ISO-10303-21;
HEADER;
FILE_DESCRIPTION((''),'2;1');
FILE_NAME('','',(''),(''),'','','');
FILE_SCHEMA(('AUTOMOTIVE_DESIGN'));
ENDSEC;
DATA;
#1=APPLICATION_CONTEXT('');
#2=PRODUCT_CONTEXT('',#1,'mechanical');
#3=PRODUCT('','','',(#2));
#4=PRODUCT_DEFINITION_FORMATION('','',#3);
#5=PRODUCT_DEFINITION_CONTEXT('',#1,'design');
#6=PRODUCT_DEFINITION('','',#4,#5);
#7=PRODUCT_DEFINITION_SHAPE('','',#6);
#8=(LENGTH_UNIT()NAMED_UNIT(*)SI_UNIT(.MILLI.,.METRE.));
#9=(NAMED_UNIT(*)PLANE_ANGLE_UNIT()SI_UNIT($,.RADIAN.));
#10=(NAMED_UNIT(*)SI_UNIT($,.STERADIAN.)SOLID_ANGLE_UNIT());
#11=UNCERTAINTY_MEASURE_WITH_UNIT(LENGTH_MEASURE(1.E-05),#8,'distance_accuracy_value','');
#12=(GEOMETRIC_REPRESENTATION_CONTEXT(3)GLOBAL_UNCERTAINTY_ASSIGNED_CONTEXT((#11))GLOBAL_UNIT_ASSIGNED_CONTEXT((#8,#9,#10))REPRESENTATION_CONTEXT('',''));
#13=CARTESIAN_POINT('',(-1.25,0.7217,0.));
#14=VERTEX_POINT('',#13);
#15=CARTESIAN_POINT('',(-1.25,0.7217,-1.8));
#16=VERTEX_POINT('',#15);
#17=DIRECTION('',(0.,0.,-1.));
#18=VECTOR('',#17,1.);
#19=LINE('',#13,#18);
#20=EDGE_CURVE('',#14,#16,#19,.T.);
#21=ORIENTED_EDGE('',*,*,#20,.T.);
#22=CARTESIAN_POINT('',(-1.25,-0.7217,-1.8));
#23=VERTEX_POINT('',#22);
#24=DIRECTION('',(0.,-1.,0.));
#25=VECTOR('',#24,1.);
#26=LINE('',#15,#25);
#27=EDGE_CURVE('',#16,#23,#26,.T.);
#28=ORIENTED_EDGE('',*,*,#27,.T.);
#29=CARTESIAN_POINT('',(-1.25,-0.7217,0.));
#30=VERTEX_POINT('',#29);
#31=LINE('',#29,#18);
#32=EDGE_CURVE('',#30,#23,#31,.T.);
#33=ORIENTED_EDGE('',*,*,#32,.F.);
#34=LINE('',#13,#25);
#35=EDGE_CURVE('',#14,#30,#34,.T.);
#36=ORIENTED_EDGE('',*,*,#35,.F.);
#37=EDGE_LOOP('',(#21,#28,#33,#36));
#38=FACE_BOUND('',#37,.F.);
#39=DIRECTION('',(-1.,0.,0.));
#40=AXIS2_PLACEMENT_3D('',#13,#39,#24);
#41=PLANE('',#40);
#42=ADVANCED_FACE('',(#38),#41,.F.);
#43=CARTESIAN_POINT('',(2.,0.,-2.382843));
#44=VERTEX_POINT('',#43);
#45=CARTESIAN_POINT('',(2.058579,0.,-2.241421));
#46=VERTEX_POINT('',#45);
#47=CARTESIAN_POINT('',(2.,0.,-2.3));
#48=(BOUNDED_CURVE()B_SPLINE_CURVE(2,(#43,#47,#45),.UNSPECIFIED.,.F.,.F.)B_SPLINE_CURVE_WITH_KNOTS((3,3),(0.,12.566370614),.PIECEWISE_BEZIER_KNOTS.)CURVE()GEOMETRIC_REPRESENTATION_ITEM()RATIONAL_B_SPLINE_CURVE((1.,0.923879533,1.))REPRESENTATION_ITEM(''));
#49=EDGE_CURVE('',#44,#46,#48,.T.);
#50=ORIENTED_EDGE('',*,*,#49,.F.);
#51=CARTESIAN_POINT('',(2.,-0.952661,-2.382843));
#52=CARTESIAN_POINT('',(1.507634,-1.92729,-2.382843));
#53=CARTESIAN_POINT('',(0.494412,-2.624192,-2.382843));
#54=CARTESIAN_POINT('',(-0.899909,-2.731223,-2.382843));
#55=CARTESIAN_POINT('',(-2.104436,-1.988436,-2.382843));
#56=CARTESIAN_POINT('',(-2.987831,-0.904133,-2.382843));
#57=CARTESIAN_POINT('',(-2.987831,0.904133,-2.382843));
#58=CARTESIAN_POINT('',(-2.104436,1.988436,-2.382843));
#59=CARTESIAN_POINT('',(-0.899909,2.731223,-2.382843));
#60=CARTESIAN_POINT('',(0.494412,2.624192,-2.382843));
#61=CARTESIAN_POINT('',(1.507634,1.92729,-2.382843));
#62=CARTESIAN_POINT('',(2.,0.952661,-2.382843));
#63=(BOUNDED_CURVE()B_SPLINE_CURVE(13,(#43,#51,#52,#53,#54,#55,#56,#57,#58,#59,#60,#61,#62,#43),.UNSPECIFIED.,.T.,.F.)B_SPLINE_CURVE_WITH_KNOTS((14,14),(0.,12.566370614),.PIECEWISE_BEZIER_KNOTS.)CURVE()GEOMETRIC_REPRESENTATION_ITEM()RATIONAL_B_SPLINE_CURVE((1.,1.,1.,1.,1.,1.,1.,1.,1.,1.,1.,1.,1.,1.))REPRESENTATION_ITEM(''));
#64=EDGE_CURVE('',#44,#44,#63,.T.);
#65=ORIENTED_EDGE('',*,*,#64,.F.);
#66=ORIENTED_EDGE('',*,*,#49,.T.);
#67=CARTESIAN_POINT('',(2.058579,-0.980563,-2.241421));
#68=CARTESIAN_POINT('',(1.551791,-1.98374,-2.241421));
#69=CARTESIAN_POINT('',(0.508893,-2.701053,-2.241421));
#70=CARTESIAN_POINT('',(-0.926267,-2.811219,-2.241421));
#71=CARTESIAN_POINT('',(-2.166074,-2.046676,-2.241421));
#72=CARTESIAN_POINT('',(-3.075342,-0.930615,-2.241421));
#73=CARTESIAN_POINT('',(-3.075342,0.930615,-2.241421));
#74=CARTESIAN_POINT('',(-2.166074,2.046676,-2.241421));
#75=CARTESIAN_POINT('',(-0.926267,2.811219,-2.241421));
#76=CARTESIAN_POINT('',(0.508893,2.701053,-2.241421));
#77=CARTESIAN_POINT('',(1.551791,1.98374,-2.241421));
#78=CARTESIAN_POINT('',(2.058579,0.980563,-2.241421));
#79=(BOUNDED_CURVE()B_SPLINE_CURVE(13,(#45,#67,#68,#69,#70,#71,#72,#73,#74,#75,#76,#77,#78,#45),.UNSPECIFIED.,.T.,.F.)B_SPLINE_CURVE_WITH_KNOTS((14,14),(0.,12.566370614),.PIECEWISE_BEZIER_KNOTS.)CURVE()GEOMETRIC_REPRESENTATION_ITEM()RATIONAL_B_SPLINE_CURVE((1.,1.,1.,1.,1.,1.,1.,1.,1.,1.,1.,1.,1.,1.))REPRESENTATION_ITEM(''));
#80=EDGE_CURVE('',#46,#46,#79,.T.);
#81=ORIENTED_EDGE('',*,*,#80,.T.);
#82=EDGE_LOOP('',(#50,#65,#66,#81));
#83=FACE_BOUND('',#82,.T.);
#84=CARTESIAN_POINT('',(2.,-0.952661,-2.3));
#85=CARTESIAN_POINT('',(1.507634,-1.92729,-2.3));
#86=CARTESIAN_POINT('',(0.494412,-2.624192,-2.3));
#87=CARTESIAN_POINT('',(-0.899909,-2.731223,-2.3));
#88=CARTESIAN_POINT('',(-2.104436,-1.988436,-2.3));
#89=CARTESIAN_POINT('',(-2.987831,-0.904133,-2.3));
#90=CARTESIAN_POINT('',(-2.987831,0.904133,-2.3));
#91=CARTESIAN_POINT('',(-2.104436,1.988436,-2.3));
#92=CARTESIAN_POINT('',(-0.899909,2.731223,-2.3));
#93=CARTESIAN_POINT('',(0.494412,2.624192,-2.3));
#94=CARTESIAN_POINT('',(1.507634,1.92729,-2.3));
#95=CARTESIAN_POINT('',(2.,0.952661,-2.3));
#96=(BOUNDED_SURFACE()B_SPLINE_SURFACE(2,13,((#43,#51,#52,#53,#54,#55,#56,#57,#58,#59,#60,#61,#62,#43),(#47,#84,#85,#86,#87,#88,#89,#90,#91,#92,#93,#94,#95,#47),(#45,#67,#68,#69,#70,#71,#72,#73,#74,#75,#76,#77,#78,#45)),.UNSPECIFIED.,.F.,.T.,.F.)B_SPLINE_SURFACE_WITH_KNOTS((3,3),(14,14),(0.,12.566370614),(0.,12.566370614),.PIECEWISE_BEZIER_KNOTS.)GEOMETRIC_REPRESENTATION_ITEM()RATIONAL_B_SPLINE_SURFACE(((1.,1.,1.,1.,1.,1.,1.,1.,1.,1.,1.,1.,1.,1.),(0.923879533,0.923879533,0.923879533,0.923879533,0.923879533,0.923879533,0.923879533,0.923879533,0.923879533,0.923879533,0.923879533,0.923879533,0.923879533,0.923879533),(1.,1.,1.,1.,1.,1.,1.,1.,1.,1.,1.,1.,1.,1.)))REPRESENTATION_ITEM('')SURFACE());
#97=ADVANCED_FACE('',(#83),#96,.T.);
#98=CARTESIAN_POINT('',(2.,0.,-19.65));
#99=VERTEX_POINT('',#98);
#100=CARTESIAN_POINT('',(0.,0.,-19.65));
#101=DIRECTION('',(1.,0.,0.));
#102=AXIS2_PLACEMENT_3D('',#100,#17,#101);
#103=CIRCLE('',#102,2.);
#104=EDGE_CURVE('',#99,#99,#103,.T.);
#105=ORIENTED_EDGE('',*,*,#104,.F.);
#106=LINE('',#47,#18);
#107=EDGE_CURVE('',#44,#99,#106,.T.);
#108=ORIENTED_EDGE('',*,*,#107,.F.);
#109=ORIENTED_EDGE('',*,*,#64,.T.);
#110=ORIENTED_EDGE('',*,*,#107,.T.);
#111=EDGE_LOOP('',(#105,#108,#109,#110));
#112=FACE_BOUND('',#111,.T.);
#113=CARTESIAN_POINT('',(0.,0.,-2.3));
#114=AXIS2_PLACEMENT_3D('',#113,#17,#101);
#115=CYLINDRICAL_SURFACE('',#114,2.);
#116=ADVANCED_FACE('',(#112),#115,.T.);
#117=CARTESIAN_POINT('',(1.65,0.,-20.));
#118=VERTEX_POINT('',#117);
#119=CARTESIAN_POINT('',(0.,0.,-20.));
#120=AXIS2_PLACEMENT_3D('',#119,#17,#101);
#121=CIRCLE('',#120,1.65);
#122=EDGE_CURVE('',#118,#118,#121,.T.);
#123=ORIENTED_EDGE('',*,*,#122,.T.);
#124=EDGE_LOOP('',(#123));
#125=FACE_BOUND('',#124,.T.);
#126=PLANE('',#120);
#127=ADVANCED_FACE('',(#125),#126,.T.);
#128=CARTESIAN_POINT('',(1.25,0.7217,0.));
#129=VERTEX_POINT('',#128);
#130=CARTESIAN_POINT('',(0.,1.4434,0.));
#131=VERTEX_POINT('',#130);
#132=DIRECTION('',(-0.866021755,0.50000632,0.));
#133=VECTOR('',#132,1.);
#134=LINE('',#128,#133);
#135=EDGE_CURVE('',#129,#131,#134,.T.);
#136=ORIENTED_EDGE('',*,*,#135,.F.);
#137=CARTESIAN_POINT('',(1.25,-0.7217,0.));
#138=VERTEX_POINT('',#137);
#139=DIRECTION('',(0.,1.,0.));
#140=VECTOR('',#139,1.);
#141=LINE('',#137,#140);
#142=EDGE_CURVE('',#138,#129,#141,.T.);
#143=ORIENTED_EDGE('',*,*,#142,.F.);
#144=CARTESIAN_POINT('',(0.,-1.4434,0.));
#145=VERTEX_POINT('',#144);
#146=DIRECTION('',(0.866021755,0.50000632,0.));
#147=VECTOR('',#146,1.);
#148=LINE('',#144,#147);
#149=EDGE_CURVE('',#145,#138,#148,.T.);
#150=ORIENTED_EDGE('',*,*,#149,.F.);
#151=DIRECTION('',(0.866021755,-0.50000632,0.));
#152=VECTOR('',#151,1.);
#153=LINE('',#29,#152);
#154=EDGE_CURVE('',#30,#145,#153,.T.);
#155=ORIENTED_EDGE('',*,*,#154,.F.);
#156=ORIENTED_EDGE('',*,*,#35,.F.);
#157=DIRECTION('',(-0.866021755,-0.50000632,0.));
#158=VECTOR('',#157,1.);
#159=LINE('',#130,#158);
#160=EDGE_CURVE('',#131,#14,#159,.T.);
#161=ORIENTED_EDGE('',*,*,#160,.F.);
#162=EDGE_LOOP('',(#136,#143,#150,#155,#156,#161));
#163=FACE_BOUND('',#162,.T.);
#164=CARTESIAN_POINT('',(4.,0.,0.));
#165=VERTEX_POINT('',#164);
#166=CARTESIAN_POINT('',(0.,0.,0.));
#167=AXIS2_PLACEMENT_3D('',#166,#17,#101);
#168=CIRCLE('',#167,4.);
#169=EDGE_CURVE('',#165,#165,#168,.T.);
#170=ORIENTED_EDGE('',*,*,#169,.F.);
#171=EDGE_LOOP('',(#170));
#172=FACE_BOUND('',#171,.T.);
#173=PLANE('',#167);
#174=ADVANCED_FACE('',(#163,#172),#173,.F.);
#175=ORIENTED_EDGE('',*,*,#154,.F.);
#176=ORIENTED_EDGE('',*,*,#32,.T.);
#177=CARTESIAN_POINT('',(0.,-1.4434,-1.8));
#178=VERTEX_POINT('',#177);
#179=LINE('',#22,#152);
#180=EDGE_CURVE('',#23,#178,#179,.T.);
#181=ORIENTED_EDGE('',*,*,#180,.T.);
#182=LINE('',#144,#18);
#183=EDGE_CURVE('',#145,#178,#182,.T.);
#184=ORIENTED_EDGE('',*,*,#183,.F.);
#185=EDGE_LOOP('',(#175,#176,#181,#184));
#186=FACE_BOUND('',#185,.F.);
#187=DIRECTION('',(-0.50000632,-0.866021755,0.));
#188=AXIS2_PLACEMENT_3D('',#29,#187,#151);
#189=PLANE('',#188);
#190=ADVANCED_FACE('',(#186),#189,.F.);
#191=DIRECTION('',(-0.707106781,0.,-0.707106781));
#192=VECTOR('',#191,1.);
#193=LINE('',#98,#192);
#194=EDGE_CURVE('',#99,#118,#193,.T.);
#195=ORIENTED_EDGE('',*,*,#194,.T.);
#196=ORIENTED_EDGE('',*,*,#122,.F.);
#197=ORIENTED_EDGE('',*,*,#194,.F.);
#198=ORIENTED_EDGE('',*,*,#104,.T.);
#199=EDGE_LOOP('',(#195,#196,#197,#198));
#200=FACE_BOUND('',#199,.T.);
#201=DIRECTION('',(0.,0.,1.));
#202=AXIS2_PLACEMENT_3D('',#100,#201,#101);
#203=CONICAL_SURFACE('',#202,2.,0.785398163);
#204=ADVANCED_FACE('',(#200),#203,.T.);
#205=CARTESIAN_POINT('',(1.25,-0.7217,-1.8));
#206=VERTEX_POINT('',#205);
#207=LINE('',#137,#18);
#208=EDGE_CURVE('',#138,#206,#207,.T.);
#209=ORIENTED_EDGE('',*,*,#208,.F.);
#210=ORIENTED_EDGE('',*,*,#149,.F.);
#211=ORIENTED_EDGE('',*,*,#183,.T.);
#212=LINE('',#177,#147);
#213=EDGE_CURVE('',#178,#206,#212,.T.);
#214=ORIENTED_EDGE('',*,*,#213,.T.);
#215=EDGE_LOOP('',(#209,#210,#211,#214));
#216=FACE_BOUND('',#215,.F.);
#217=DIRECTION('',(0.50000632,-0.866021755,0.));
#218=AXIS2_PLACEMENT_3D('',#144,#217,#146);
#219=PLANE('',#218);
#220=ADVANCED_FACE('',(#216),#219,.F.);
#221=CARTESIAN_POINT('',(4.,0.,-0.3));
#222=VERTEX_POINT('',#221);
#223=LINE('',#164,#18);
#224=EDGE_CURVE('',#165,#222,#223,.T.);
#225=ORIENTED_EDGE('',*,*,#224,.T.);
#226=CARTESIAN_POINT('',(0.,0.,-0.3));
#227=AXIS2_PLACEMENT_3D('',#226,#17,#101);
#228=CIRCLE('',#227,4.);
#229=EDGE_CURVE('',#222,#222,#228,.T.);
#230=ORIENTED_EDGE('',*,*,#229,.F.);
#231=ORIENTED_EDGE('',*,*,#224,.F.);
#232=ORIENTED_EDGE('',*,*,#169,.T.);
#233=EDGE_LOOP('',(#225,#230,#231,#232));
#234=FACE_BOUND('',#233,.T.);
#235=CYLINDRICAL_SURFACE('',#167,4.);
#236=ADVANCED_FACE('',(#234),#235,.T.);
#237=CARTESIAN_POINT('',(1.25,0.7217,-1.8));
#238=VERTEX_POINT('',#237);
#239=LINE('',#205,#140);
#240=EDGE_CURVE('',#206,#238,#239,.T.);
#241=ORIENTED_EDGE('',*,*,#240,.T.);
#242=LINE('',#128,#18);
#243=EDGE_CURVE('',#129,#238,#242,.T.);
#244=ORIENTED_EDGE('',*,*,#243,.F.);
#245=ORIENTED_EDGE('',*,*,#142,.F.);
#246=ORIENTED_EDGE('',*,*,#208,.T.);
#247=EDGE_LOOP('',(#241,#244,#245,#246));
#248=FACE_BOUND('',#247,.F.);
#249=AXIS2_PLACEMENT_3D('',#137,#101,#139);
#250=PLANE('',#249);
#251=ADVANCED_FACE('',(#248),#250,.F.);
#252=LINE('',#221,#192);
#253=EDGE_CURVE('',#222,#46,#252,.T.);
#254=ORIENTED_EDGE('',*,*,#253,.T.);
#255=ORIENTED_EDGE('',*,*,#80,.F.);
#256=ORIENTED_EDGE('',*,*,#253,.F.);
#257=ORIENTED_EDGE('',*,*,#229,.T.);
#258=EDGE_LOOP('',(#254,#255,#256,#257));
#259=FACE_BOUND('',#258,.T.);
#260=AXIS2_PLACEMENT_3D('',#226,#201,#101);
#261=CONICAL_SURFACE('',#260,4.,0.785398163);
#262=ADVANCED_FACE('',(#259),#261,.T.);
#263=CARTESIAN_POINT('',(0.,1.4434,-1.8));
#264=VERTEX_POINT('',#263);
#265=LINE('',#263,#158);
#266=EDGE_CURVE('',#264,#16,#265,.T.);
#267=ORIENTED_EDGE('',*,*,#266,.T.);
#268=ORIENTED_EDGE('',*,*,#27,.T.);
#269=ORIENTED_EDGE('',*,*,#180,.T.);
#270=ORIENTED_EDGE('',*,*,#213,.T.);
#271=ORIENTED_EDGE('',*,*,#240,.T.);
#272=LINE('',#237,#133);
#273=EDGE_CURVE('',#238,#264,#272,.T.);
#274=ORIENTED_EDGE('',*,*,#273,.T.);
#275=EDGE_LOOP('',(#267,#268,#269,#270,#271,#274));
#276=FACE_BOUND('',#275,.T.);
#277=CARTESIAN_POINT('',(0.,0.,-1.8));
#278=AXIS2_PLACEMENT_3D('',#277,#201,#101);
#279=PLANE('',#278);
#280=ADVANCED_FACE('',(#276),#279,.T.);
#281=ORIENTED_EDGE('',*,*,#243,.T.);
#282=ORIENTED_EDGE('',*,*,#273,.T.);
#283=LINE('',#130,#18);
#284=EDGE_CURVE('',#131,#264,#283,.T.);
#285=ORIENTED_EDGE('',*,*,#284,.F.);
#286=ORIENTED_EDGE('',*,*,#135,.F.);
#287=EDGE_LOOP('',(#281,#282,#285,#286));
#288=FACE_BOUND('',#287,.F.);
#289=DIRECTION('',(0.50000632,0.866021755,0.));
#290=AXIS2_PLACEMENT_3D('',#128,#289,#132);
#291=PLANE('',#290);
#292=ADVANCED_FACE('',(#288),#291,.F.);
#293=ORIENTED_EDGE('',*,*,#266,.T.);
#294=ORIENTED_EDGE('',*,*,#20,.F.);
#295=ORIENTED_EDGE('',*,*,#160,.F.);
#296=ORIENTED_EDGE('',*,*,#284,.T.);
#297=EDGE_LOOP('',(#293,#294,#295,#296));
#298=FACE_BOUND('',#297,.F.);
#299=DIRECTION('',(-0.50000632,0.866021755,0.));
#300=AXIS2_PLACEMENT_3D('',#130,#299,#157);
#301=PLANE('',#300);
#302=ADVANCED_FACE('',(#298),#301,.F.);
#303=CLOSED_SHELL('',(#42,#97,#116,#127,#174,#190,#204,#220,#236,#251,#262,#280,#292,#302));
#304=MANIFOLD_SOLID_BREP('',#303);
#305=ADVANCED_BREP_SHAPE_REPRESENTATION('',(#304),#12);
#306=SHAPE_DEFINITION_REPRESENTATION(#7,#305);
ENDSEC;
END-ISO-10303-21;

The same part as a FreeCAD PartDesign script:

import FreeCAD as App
import Part
import Sketcher

V = App.Vector
Q = App.Units.Quantity


def edges_at(feature, points):
    """Names of the edges that pass closest to the given points."""
    edges = feature.Shape.Edges
    near = lambda p: min(range(len(edges)), key=lambda i: edges[i].distToShape(Part.Vertex(*p))[0])
    return sorted({f"Edge{near(p) + 1}" for p in points})

doc = App.newDocument("Part")
body = doc.addObject("PartDesign::Body", "Body")

sketch1 = doc.addObject("Sketcher::SketchObject", "Sketch")
body.addObject(sketch1)
sketch1.AttachmentSupport = (doc.XZ_Plane, [""])
sketch1.MapMode = "FlatFace"
sketch1.addGeometry([
    Part.LineSegment(V(2, -2.3, 0), V(2, -20, 0)),
    Part.LineSegment(V(2, -20, 0), V(0, -20, 0)),
    Part.LineSegment(V(0, -20, 0), V(0, 0, 0)),
    Part.LineSegment(V(0, 0, 0), V(4, 0, 0)),
    Part.LineSegment(V(4, 0, 0), V(4, -0.3, 0)),
    Part.LineSegment(V(4, -0.3, 0), V(2, -2.3, 0)),
], False)
sketch1.addConstraint([
    Sketcher.Constraint("Coincident", 0, 2, 1, 1),
    Sketcher.Constraint("Coincident", 1, 2, 2, 1),
    Sketcher.Constraint("Coincident", 2, 2, 3, 1),
    Sketcher.Constraint("Coincident", 3, 2, 4, 1),
    Sketcher.Constraint("Coincident", 4, 2, 5, 1),
    Sketcher.Constraint("Coincident", 5, 2, 0, 1),
    Sketcher.Constraint("Vertical", 0),
    Sketcher.Constraint("Horizontal", 1),
    Sketcher.Constraint("Vertical", 2),
    Sketcher.Constraint("Horizontal", 3),
    Sketcher.Constraint("Vertical", 4),
    Sketcher.Constraint("Coincident", 2, 2, -1, 1),
    Sketcher.Constraint("DistanceX", 1, 2, 1, 1, Q("2 mm")),
    Sketcher.Constraint("DistanceX", 3, 1, 3, 2, Q("4 mm")),
    Sketcher.Constraint("DistanceY", 2, 1, 2, 2, Q("20 mm")),
    Sketcher.Constraint("DistanceY", 4, 2, 4, 1, Q("0.3 mm")),
    Sketcher.Constraint("DistanceY", 5, 2, 4, 2, Q("2 mm")),
])
revolution = doc.addObject("PartDesign::Revolution", "Revolution")
body.addObject(revolution)
revolution.Profile = sketch1
revolution.ReferenceAxis = (sketch1, ["V_Axis"])
revolution.Angle = 360

sketch2 = doc.addObject("Sketcher::SketchObject", "Sketch001")
body.addObject(sketch2)
sketch2.AttachmentSupport = (doc.XY_Plane, [""])
sketch2.MapMode = "FlatFace"
sketch2.addGeometry([
    Part.LineSegment(V(0, 1.4434, 0), V(-1.25, 0.7217, 0)),
    Part.LineSegment(V(-1.25, 0.7217, 0), V(-1.25, -0.7217, 0)),
    Part.LineSegment(V(-1.25, -0.7217, 0), V(0, -1.4434, 0)),
    Part.LineSegment(V(0, -1.4434, 0), V(1.25, -0.7217, 0)),
    Part.LineSegment(V(1.25, -0.7217, 0), V(1.25, 0.7217, 0)),
    Part.LineSegment(V(1.25, 0.7217, 0), V(0, 1.4434, 0)),
], False)
sketch2.addConstraint([
    Sketcher.Constraint("Coincident", 0, 2, 1, 1),
    Sketcher.Constraint("Coincident", 1, 2, 2, 1),
    Sketcher.Constraint("Coincident", 2, 2, 3, 1),
    Sketcher.Constraint("Coincident", 3, 2, 4, 1),
    Sketcher.Constraint("Coincident", 4, 2, 5, 1),
    Sketcher.Constraint("Coincident", 5, 2, 0, 1),
    Sketcher.Constraint("Vertical", 1),
    Sketcher.Constraint("Vertical", 4),
    Sketcher.Constraint("Symmetric", 0, 2, 3, 2, -1, 1),
    Sketcher.Constraint("Symmetric", 2, 2, 5, 2, -1, 1),
    Sketcher.Constraint("PointOnObject", 2, 2, -2),
    Sketcher.Constraint("Parallel", 2, 5),
    Sketcher.Constraint("Horizontal", 1, 2, 3, 2),
    Sketcher.Constraint("DistanceX", 1, 2, 3, 2, Q("2.5 mm")),
    Sketcher.Constraint("Angle", 0, Q("-149.9996 deg")),
    Sketcher.Constraint("DistanceY", 1, 2, 1, 1, Q("1.4434 mm")),
])
pocket1 = doc.addObject("PartDesign::Pocket", "Pocket")
body.addObject(pocket1)
pocket1.Profile = sketch2
pocket1.Length = 1.8
doc.recompute()

fillet = doc.addObject("PartDesign::Fillet", "Fillet")
body.addObject(fillet)
fillet.Base = (pocket1, edges_at(pocket1, [(-2, 0, -2.3)]))
fillet.Radius = 0.2
doc.recompute()

chamfer = doc.addObject("PartDesign::Chamfer", "Chamfer")
body.addObject(chamfer)
chamfer.Base = (fillet, edges_at(fillet, [(-2, 0, -20)]))
chamfer.Size = 0.35

doc.recompute()
